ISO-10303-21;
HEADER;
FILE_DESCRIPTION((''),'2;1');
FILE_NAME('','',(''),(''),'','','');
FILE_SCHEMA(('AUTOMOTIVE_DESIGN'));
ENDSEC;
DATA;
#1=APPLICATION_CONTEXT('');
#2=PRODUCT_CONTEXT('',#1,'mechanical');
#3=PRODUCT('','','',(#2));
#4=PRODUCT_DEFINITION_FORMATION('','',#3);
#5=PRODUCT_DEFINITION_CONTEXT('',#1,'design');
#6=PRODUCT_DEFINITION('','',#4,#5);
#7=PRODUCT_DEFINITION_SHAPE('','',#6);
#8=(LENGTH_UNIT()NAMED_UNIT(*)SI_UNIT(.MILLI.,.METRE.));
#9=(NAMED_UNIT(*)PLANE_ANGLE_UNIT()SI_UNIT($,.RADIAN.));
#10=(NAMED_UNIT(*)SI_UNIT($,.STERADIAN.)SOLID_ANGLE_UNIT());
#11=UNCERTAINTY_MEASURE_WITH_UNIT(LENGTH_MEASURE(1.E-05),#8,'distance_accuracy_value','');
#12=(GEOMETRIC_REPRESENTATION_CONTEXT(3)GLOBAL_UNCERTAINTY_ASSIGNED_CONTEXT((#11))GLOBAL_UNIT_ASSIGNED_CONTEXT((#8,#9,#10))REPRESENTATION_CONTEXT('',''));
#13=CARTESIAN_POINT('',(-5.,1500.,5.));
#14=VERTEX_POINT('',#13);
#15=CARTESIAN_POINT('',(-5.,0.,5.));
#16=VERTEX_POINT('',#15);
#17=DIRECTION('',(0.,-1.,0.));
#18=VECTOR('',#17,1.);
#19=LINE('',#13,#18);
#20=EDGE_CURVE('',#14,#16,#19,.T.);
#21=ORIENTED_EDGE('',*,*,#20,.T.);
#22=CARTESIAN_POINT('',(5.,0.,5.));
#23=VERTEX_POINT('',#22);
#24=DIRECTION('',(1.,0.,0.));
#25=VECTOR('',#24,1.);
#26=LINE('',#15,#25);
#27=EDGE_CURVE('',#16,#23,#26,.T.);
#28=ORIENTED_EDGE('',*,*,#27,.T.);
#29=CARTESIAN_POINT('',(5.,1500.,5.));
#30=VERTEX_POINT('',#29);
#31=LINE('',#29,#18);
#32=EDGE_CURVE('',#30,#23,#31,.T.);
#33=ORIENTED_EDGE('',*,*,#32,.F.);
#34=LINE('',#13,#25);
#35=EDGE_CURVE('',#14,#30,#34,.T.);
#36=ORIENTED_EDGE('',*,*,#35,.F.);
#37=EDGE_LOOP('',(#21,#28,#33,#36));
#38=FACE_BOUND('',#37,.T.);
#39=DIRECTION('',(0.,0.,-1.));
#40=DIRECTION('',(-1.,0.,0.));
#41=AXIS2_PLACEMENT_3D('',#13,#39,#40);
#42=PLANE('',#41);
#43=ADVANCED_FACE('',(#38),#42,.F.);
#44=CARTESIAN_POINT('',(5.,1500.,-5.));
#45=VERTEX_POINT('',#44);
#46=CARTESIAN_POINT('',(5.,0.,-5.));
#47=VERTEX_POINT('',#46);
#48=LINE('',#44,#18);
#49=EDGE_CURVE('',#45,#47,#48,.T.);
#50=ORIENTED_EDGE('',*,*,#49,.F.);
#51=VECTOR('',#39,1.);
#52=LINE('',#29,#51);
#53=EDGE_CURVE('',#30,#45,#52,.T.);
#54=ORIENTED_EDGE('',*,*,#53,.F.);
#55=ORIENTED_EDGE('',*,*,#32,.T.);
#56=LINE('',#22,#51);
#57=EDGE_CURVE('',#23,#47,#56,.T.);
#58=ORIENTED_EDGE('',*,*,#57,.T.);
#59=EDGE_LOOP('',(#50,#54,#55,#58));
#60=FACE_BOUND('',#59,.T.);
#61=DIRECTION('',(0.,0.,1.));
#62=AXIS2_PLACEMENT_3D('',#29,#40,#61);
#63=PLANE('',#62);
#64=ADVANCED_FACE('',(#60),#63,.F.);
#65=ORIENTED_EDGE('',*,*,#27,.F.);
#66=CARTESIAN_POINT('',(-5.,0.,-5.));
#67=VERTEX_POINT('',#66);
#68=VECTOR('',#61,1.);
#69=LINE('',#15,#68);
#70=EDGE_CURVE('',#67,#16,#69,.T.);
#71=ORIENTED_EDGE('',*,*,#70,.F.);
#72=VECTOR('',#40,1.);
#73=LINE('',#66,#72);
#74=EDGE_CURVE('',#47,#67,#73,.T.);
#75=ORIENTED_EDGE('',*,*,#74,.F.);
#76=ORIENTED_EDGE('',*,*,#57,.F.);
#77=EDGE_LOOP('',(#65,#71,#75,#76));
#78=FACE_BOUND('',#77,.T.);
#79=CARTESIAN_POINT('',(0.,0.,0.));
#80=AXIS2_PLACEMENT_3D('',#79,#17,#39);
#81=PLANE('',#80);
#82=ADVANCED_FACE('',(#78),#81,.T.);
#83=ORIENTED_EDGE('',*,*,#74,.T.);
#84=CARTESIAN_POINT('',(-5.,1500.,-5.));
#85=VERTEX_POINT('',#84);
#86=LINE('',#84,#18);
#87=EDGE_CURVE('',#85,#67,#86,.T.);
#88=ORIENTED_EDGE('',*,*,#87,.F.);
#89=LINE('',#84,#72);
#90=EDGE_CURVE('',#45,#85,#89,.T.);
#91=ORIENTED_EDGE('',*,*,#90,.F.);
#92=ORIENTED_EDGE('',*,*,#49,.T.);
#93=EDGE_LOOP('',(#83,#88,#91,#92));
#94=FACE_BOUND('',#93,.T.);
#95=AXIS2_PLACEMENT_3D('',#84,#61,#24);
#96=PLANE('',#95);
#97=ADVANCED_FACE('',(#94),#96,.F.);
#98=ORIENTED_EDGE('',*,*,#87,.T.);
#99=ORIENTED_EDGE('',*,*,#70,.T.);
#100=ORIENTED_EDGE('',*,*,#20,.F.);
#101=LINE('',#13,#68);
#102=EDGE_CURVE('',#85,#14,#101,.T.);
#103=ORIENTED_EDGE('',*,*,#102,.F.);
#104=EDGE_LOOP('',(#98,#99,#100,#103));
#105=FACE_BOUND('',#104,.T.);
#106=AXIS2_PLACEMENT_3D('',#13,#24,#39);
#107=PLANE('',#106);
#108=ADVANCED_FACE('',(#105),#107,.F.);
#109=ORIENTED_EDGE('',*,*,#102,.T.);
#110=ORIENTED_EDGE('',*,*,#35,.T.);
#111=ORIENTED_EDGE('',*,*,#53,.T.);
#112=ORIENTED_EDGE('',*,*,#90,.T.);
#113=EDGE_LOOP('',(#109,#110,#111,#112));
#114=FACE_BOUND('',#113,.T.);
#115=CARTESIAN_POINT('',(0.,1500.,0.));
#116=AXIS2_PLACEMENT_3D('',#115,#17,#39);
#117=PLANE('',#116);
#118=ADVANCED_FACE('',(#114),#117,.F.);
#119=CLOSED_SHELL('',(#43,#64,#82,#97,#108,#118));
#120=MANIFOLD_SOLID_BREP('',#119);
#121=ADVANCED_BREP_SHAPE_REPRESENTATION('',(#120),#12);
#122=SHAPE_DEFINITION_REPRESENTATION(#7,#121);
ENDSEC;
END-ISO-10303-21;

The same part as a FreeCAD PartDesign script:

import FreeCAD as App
import Part
import Sketcher

V = App.Vector


def add_polygon(sketch, points):
    """Adds a closed chain of lines whose ends are joined by coincident constraints."""
    first, n = sketch.GeometryCount, len(points)
    for a, b in zip(points, points[1:] + points[:1]):
        sketch.addGeometry(Part.LineSegment(App.Vector(*a, 0), App.Vector(*b, 0)), False)
    for i in range(n):
        sketch.addConstraint(Sketcher.Constraint("Coincident", first + i, 2, first + (i + 1) % n, 1))

doc = App.newDocument("Part")
body = doc.addObject("PartDesign::Body", "Body")

# Sketch on XZ plane
sketch1 = body.newObject("Sketcher::SketchObject", "Sketch")
sketch1.AttachmentSupport = (doc.getObject("XZ_Plane"), [""])
sketch1.MapMode = "FlatFace"
add_polygon(sketch1, [(-5, -5), (-5, 5), (5, 5), (5, -5)])  # lines 0-3
sketch1.addConstraint([
    Sketcher.Constraint("Vertical", 0),
    Sketcher.Constraint("Horizontal", 1),
    Sketcher.Constraint("Vertical", 2),
    Sketcher.Constraint("Horizontal", 3),
    Sketcher.Constraint("Symmetric", 0, 2, 2, 2, -1, 1),
    Sketcher.Constraint("Equal", 3, 0),
    Sketcher.Constraint("DistanceX", 1, 1, 1, 2, 10.0),
])
pad1 = body.newObject("PartDesign::Pad", "Pad")
pad1.Profile = sketch1
pad1.Length = 1500
pad1.Reversed = True

doc.recompute()
